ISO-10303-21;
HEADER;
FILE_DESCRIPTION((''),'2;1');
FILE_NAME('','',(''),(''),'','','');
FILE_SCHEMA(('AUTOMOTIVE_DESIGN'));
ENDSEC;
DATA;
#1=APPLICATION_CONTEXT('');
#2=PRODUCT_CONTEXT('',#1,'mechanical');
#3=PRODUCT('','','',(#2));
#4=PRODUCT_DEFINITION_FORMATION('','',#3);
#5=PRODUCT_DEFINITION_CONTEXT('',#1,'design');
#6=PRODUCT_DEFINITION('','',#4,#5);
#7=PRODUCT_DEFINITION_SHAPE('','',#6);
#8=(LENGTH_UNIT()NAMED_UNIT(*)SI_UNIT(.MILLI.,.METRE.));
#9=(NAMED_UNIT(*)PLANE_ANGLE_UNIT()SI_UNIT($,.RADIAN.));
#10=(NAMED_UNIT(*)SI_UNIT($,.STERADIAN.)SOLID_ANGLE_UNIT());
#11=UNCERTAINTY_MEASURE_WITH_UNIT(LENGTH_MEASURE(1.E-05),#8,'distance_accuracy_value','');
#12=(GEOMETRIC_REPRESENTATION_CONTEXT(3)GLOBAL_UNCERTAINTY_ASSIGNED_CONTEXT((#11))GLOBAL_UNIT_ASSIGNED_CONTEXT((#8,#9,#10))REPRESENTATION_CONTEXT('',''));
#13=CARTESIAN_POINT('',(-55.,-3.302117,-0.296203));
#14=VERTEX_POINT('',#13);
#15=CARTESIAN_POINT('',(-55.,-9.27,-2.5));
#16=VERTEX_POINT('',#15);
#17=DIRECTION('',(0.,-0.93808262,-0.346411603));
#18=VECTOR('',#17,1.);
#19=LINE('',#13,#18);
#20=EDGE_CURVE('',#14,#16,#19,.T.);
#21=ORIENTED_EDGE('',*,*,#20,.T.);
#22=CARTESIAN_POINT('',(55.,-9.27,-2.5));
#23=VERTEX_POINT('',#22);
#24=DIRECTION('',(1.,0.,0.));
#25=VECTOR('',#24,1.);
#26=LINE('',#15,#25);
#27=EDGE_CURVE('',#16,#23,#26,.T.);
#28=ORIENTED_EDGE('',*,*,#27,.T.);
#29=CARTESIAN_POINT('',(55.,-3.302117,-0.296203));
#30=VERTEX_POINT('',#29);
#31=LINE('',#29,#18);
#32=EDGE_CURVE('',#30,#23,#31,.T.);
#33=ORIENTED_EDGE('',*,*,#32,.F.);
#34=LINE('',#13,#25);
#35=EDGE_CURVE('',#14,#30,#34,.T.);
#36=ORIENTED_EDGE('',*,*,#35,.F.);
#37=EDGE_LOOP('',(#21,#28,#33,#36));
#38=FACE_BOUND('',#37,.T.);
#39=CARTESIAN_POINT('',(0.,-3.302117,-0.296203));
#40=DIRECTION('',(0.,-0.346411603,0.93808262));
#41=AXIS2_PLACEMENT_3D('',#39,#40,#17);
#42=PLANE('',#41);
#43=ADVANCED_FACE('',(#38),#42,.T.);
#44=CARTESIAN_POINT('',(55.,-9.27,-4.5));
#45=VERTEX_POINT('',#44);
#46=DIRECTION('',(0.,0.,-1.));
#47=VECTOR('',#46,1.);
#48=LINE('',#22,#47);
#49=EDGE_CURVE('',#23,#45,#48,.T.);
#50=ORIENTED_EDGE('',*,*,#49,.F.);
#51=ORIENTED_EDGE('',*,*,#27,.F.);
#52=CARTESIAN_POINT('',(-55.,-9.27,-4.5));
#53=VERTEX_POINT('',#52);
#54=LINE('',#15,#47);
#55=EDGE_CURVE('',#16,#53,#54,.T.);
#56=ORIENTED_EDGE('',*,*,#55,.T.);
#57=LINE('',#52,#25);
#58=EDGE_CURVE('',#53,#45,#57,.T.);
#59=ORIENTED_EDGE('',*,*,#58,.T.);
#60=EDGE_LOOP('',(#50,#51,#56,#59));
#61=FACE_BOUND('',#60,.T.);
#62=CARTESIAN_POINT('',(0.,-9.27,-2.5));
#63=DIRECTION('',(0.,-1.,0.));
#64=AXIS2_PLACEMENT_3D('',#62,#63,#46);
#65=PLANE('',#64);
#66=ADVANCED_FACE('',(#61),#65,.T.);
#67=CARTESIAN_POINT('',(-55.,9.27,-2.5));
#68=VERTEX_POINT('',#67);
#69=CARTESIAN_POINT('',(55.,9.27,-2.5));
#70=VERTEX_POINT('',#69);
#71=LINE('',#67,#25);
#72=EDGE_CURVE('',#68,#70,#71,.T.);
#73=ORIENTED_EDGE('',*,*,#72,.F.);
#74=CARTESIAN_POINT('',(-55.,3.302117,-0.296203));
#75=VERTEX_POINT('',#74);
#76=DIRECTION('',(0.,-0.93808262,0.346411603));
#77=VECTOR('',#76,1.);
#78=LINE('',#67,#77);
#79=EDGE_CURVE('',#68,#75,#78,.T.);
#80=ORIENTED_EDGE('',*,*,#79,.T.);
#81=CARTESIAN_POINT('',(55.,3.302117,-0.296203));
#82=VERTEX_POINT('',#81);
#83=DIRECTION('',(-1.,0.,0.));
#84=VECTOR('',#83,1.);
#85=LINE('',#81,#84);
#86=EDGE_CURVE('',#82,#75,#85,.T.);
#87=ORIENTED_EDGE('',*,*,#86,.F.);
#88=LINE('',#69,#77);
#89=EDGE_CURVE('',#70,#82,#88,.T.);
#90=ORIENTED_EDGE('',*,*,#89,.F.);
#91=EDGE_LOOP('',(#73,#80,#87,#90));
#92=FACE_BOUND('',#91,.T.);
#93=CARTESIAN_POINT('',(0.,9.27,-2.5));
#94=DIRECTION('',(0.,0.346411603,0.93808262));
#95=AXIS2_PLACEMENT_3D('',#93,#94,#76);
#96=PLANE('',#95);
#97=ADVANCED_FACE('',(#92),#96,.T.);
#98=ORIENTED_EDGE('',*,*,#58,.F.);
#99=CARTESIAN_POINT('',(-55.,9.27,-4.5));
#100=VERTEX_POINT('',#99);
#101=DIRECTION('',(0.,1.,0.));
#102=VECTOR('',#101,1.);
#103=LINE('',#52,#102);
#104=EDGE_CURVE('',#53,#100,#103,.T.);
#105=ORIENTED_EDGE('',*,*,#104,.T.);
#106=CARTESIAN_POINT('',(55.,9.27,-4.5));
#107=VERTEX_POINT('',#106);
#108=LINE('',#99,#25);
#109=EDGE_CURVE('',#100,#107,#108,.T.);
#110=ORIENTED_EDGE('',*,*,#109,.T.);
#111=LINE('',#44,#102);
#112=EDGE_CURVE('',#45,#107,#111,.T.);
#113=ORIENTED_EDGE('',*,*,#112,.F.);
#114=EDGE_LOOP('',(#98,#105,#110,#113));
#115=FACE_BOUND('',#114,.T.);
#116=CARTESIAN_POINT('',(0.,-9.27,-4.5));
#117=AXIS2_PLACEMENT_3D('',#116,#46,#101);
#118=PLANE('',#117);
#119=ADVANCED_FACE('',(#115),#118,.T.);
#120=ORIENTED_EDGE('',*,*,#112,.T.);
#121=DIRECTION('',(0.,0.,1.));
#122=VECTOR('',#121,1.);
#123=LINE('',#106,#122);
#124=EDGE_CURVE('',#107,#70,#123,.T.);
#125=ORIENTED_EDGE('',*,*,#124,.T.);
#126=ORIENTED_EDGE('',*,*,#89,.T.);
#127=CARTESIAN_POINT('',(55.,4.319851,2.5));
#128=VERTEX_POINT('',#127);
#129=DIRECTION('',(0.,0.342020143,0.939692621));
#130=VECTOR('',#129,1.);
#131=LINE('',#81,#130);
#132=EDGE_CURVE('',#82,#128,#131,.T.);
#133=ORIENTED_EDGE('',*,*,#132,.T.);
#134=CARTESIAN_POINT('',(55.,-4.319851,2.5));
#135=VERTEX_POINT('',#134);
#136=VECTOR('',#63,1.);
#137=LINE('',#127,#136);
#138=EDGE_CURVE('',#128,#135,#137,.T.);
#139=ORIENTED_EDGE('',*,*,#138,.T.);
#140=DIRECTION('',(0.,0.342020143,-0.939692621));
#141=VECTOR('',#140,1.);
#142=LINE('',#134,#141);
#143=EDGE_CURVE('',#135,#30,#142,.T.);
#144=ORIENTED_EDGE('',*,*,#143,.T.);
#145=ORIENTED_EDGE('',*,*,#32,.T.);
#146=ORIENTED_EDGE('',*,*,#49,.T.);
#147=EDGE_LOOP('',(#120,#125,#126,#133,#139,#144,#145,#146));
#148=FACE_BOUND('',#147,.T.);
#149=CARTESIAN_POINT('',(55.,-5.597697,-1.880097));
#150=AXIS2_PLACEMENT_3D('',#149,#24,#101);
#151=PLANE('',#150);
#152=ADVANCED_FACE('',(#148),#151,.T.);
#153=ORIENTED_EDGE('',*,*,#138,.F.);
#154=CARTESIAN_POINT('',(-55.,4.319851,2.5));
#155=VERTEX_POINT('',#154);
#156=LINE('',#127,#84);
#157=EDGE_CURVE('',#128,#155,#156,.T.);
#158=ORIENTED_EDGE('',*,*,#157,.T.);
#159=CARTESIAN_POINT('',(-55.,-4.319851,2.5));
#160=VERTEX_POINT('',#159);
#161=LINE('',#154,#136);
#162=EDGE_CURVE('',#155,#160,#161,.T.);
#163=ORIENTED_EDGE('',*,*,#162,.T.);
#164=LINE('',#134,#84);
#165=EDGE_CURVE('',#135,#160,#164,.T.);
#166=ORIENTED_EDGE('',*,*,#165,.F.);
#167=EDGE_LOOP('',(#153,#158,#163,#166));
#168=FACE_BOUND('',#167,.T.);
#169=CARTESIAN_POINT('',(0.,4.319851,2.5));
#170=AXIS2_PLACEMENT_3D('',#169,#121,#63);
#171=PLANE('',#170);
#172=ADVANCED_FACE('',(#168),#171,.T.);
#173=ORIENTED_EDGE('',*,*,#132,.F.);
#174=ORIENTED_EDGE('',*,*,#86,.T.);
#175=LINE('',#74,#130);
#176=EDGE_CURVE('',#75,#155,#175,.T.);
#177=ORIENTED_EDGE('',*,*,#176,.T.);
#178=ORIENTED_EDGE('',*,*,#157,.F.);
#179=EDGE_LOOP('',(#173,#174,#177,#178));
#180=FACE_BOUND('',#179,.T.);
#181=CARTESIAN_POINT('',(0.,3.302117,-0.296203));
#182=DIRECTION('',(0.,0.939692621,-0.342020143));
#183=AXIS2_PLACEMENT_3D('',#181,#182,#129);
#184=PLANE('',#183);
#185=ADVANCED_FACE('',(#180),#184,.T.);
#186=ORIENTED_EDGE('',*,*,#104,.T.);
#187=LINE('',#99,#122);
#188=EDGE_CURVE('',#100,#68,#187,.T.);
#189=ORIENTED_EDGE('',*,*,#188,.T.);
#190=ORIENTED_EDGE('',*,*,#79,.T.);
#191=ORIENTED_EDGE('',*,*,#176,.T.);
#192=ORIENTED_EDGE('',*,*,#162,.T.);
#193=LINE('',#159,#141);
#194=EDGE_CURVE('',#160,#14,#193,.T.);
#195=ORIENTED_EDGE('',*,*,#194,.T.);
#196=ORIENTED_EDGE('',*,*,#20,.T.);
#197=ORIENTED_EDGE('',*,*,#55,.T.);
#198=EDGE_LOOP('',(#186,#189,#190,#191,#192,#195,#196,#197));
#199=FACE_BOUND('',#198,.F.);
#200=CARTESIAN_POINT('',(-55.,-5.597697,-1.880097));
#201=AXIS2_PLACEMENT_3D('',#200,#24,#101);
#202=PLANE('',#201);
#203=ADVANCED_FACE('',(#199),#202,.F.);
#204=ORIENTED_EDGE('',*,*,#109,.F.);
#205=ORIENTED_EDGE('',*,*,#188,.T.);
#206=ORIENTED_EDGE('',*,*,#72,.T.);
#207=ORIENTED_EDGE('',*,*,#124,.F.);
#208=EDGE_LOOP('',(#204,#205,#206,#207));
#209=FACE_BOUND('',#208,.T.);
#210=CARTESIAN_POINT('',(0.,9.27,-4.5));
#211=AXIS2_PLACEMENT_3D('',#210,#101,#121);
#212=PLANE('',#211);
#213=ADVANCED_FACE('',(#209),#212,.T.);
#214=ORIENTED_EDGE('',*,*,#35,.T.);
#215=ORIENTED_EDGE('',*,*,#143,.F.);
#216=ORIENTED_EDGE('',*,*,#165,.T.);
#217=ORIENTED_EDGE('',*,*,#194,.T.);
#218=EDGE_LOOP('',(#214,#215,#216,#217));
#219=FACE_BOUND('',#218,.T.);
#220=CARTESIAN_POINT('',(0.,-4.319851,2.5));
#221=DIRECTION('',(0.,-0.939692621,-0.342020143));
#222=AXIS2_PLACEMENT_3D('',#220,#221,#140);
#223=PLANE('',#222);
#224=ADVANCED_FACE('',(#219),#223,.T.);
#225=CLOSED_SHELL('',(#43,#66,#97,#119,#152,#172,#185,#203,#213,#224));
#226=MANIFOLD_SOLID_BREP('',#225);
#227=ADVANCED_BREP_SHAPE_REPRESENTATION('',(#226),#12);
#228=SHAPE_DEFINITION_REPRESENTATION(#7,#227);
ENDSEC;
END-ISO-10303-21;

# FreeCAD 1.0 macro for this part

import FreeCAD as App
import Part
import Sketcher

V = App.Vector
Q = App.Units.Quantity


def add_polygon(sketch, points):
    """Adds a closed chain of lines whose ends are joined by coincident constraints."""
    first, n = sketch.GeometryCount, len(points)
    for a, b in zip(points, points[1:] + points[:1]):
        sketch.addGeometry(Part.LineSegment(App.Vector(*a, 0), App.Vector(*b, 0)), False)
    for i in range(n):
        sketch.addConstraint(Sketcher.Constraint("Coincident", first + i, 2, first + (i + 1) % n, 1))

doc = App.newDocument("Part")
body = doc.addObject("PartDesign::Body", "Body")

# Sketch on YZ plane
sketch1 = body.newObject("Sketcher::SketchObject", "Sketch")
sketch1.AttachmentSupport = (doc.getObject("YZ_Plane"), [""])
sketch1.MapMode = "FlatFace"
add_polygon(sketch1, [(-4.319851, 2.5), (-3.302117, -0.296203), (-9.27, -2.5), (-9.27, -4.5), (9.27, -4.5), (9.27, -2.5), (3.302117, -0.296203), (4.319851, 2.5)])  # lines 0-7
sketch1.addConstraint(Sketcher.Constraint("Vertical", 2))
sketch1.addConstraint(Sketcher.Constraint("Horizontal", 3))
sketch1.addConstraint(Sketcher.Constraint("Vertical", 4))
sketch1.addConstraint(Sketcher.Constraint("Horizontal", 7))
sketch1.addConstraint(Sketcher.Constraint("DistanceY", 2, 2, 2, 1, Q("2 mm")))
sketch1.addConstraint(Sketcher.Constraint("DistanceY", 4, 1, 4, 2, Q("2 mm")))
sketch1.addConstraint(Sketcher.Constraint("DistanceY", 4, 2, 6, 2, Q("5 mm")))
sketch1.addConstraint(Sketcher.Constraint("DistanceX", 3, 1, 3, 2, Q("18.54 mm")))
sketch1.addConstraint(Sketcher.Constraint("DistanceY", 1, 2, -1, 1, Q("2.5 mm")))
sketch1.addConstraint(Sketcher.Constraint("DistanceX", 1, 2, -1, 1, Q("9.27 mm")))
sketch1.addConstraint(Sketcher.Constraint("Distance", 1, Q("6.361789 mm")))
sketch1.addConstraint(Sketcher.Constraint("Distance", 5, Q("6.361789 mm")))
sketch1.addConstraint(Sketcher.Constraint("DistanceX", 7, 2, 7, 1, Q("8.639702 mm")))
sketch1.addConstraint(Sketcher.Constraint("DistanceX", -1, 1, 6, 2, Q("4.319851 mm")))
sketch1.addConstraint(Sketcher.Constraint("Distance", 0, Q("2.975657 mm")))
sketch1.addConstraint(Sketcher.Constraint("Distance", 6, Q("2.975657 mm")))
pad1 = body.newObject("PartDesign::Pad", "Pad")
pad1.Profile = sketch1
pad1.Type = "TwoLengths"
pad1.Length = 55
pad1.Length2 = 55

doc.recompute()
